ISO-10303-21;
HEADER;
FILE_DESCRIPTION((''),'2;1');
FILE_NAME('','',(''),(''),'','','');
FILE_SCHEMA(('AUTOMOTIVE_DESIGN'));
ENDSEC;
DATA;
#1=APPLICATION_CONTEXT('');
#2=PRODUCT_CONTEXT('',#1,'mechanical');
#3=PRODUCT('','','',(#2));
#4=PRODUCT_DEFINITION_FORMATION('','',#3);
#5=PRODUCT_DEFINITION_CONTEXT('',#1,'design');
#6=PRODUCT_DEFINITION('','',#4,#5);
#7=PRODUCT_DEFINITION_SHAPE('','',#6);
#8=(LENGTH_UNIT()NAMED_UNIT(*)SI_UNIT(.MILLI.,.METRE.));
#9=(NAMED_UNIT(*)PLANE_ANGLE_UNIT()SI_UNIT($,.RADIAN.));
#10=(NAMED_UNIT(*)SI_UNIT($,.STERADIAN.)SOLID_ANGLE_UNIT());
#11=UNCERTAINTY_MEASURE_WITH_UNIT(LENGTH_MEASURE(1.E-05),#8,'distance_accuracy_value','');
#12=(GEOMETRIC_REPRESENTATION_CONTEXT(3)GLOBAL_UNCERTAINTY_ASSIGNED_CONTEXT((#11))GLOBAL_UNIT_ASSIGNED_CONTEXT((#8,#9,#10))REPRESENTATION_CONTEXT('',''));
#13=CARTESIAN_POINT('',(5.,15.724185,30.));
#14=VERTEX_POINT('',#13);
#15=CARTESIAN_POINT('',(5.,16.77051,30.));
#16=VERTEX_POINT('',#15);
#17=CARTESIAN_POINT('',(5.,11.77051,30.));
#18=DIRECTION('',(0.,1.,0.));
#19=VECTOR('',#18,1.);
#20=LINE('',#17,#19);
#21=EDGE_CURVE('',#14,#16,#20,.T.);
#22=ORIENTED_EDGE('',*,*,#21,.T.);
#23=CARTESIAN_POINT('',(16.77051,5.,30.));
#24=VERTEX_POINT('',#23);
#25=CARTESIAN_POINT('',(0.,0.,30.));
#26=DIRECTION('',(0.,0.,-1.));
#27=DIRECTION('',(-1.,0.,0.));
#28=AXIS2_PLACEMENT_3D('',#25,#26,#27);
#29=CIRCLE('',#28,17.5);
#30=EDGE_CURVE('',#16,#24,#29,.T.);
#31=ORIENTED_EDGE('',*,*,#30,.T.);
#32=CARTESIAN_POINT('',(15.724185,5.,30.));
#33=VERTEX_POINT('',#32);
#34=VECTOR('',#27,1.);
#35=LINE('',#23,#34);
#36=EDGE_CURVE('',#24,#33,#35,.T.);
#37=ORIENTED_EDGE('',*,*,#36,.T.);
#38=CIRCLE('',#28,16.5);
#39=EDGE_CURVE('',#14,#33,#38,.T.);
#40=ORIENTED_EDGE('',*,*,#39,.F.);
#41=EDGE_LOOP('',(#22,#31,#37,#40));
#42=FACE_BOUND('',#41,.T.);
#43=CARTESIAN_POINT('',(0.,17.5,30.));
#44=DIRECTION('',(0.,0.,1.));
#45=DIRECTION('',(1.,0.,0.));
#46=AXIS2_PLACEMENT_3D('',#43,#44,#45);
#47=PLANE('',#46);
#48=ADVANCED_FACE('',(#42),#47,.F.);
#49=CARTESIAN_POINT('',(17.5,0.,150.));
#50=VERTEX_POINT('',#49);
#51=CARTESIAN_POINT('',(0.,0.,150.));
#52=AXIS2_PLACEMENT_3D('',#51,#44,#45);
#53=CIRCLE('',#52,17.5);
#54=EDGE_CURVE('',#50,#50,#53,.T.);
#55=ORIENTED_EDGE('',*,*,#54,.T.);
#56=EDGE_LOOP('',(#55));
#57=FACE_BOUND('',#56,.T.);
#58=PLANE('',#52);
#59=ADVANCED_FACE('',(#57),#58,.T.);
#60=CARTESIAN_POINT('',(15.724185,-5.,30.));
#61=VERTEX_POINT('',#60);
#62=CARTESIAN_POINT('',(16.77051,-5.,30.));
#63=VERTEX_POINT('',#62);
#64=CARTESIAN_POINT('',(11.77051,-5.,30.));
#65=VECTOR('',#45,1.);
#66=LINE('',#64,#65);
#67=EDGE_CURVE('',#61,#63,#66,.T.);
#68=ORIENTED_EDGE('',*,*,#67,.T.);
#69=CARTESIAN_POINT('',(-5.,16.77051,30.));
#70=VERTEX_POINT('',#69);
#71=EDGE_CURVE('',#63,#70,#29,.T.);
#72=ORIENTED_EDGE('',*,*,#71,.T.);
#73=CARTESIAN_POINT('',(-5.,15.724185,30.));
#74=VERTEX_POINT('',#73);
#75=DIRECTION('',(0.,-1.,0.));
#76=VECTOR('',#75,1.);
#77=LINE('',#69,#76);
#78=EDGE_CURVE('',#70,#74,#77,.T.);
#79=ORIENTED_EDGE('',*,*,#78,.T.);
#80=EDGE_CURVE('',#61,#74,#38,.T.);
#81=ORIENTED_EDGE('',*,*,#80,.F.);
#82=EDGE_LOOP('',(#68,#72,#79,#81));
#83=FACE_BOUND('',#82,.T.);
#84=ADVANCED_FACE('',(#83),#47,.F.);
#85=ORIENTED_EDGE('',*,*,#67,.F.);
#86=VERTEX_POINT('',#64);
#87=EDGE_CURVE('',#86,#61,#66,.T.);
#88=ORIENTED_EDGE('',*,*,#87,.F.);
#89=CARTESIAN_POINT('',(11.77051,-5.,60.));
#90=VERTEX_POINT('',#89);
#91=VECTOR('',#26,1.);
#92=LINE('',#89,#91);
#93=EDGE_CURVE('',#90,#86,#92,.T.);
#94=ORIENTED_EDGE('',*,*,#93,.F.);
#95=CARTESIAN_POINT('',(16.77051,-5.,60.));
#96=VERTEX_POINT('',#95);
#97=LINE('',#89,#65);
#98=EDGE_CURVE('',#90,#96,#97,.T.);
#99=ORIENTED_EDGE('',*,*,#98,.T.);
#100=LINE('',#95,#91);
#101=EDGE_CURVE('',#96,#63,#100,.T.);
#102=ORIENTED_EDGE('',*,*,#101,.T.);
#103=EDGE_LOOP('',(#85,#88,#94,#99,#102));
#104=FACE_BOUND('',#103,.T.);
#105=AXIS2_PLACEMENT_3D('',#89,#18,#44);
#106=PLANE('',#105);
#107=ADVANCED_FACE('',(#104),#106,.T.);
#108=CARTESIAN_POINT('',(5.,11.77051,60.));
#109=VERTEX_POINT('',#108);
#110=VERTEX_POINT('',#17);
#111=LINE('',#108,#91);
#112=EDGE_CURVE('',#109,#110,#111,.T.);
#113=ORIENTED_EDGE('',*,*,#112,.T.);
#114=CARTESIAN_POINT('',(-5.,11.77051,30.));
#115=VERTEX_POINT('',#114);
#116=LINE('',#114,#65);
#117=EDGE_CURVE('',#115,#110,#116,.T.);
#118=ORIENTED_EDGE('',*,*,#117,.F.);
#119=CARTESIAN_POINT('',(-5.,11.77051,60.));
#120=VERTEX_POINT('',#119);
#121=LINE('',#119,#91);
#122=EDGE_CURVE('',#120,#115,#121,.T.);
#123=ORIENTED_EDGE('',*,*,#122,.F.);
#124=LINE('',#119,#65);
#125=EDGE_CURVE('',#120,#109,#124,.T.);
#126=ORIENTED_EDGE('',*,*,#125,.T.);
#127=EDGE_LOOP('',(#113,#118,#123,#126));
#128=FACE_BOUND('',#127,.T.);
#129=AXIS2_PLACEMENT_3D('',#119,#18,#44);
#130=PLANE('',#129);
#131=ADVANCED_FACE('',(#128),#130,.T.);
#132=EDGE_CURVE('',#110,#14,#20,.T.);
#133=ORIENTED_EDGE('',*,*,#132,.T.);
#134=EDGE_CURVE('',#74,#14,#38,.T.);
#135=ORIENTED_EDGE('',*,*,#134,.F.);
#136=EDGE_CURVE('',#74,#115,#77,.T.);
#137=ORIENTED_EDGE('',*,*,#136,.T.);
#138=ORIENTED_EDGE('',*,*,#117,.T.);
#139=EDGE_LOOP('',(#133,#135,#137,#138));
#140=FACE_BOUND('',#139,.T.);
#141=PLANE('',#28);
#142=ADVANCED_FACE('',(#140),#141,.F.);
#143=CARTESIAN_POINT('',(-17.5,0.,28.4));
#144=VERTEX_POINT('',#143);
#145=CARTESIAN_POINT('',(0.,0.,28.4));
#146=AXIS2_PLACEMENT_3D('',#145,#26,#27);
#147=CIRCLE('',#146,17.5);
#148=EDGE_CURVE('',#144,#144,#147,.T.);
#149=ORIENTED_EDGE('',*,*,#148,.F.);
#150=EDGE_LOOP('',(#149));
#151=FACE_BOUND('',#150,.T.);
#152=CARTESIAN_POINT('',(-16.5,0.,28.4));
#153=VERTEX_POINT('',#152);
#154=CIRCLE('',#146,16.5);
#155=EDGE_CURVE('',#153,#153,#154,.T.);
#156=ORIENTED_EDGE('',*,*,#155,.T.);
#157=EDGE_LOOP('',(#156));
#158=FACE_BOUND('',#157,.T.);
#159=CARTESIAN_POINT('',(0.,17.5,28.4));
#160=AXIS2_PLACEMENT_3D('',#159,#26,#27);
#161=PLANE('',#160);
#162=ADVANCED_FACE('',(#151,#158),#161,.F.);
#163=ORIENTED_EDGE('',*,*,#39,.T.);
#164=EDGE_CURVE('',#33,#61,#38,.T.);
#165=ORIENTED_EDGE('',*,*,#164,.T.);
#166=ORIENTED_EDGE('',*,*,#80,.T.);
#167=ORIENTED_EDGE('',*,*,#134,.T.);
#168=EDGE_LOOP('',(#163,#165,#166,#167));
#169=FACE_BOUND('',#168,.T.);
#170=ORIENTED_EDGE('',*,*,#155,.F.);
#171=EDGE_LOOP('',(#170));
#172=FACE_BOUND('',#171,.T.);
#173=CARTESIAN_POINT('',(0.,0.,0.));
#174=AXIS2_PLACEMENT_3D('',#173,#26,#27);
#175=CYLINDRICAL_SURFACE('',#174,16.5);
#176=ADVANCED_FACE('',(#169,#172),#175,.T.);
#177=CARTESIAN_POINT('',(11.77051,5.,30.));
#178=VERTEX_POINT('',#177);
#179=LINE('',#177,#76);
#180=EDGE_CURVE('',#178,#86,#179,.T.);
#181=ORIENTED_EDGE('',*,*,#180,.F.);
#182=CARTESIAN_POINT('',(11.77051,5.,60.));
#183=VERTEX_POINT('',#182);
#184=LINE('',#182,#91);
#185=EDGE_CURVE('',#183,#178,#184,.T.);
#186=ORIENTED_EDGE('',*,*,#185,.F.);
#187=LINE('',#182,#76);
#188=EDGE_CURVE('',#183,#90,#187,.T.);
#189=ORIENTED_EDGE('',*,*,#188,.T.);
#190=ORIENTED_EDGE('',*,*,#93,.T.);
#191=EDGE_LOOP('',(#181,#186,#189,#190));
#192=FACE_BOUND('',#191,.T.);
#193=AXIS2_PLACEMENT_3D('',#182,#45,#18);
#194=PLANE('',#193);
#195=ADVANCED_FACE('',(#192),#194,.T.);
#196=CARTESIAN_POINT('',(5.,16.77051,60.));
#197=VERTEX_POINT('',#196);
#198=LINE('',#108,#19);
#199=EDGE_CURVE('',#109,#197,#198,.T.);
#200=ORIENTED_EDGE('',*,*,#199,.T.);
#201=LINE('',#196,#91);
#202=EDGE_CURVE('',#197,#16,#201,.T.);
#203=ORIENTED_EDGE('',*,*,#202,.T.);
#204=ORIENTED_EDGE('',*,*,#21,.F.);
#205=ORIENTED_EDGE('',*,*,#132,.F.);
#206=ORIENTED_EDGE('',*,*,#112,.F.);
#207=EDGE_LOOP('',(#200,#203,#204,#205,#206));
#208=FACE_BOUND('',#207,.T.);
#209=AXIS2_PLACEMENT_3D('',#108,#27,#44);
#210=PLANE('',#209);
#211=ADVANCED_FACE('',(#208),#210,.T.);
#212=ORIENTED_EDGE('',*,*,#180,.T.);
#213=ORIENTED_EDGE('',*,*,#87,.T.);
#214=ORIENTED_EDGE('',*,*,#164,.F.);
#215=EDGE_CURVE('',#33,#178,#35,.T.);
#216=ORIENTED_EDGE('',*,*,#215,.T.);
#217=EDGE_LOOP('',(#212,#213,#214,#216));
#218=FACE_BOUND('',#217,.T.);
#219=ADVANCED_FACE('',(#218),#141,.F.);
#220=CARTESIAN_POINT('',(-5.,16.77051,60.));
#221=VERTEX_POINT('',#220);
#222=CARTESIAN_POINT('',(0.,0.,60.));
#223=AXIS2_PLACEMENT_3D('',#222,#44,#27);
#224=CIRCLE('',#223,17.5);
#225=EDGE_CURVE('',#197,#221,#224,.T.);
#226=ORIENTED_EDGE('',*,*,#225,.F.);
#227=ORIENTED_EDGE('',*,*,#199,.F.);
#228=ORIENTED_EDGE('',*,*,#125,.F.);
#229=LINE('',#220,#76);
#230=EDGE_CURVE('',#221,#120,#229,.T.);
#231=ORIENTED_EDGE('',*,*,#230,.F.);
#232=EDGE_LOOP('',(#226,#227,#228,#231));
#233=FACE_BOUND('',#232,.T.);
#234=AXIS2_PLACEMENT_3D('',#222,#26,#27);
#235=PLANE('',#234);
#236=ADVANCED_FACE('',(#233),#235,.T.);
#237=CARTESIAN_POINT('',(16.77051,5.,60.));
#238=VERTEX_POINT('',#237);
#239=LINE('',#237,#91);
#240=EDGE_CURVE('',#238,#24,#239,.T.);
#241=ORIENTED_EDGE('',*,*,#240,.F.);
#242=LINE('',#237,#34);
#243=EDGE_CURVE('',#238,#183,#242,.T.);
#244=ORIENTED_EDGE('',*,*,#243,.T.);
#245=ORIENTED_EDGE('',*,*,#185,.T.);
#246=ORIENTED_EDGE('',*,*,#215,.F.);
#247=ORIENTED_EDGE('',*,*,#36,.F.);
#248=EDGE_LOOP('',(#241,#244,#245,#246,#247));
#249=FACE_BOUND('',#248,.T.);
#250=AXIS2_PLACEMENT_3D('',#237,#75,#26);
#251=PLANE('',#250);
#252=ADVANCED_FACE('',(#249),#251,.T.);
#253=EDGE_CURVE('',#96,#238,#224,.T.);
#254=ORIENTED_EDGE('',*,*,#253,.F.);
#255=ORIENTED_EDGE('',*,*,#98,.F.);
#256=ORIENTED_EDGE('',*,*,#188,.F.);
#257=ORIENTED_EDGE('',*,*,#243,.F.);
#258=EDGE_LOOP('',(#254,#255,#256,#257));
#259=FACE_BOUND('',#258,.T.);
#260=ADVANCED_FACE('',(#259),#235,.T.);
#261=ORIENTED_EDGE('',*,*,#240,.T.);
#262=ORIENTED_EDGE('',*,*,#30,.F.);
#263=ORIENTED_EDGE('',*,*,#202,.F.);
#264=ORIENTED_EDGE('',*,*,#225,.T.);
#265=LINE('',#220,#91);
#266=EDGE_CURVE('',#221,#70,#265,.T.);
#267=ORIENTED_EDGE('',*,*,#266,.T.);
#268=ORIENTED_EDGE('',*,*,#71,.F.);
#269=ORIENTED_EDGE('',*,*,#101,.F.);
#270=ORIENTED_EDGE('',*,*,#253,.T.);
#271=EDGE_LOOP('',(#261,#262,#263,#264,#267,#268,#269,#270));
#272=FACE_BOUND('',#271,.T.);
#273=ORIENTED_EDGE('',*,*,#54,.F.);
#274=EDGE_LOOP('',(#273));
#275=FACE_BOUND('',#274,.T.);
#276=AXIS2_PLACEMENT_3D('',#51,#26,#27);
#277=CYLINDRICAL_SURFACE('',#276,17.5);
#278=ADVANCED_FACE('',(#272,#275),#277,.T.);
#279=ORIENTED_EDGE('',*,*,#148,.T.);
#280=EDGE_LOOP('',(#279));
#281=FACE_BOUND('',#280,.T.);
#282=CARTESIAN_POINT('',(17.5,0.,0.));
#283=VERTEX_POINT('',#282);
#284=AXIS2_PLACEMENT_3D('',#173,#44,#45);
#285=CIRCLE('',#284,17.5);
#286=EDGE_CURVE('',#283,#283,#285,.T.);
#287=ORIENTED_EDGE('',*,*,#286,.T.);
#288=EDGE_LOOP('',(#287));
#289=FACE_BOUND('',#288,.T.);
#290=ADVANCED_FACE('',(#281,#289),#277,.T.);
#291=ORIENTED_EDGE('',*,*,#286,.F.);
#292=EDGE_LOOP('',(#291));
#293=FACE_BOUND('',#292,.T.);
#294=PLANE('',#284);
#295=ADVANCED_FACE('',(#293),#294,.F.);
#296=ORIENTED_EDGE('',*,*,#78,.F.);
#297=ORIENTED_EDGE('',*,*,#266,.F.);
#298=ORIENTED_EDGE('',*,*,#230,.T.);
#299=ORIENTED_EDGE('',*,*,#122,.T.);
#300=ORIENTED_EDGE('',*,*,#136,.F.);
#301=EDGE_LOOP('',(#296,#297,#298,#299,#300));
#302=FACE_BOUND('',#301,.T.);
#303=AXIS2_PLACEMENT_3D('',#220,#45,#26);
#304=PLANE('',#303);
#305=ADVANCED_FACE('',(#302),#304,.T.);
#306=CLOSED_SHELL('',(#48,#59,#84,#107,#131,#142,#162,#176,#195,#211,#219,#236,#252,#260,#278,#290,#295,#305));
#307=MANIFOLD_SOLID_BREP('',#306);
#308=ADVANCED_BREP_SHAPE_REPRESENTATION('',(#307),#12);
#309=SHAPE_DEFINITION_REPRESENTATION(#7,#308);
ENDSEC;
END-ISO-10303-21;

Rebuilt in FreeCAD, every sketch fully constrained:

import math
import FreeCAD as App
import Part
import Sketcher
from FreeCAD import Vector
Q = App.Units.Quantity


def add_polygon(sketch, points):
    """Adds a closed chain of lines whose ends are joined by coincident constraints."""
    first, n = sketch.GeometryCount, len(points)
    for a, b in zip(points, points[1:] + points[:1]):
        sketch.addGeometry(Part.LineSegment(App.Vector(*a, 0), App.Vector(*b, 0)), False)
    for i in range(n):
        sketch.addConstraint(Sketcher.Constraint("Coincident", first + i, 2, first + (i + 1) % n, 1))

doc = App.newDocument("Part")
body = doc.addObject("PartDesign::Body", "Body")

sketch1 = body.newObject("Sketcher::SketchObject", "Sketch")
sketch1.AttachmentSupport = (doc.getObject("XY_Plane"), [""])
sketch1.MapMode = "FlatFace"
sketch1.addGeometry(Part.Circle(Vector(0, 0, 0), Vector(0, 0, 1), 18), False)
sketch1.addConstraint(Sketcher.Constraint("Coincident", 0, 3, -1, 1))
sketch1.addConstraint(Sketcher.Constraint("Diameter", 0, Q("35 mm")))
pad1 = body.newObject("PartDesign::Pad", "Pad")
pad1.Profile = sketch1
pad1.Length = 150

sketch2 = body.newObject("Sketcher::SketchObject", "Sketch001")
sketch2.AttachmentSupport = (doc.getObject("XY_Plane"), [""])
sketch2.MapMode = "FlatFace"
sketch2.AttachmentOffset = App.Placement(Vector(0, 0, 30), App.Rotation())
sketch2.addGeometry(Part.LineSegment(Vector(-5, 16.8, 0), Vector(-5, 11.8, 0)), False)
sketch2.addGeometry(Part.LineSegment(Vector(-5, 11.8, 0), Vector(5, 11.8, 0)), False)
sketch2.addGeometry(Part.LineSegment(Vector(5, 11.8, 0), Vector(5, 16.8, 0)), False)
sketch2.addGeometry(Part.ArcOfCircle(Part.Circle(Vector(0, 0, 0), Vector(0, 0, 1), 17.5), math.radians(73), math.radians(107)), False)
sketch2.addGeometry(Part.LineSegment(Vector(16.8, 5, 0), Vector(11.8, 5, 0)), False)
sketch2.addGeometry(Part.LineSegment(Vector(11.8, 5, 0), Vector(11.8, -5, 0)), False)
sketch2.addGeometry(Part.LineSegment(Vector(11.8, -5, 0), Vector(16.8, -5, 0)), False)
sketch2.addGeometry(Part.ArcOfCircle(Part.Circle(Vector(0, 0, 0), Vector(0, 0, 1), 17.5), math.radians(-17), math.radians(17)), False)
sketch2.addConstraint(Sketcher.Constraint("Coincident", 0, 2, 1, 1))
sketch2.addConstraint(Sketcher.Constraint("Coincident", 1, 2, 2, 1))
sketch2.addConstraint(Sketcher.Constraint("Coincident", 2, 2, 3, 1))
sketch2.addConstraint(Sketcher.Constraint("Coincident", 3, 2, 0, 1))
sketch2.addConstraint(Sketcher.Constraint("Coincident", 4, 2, 5, 1))
sketch2.addConstraint(Sketcher.Constraint("Coincident", 5, 2, 6, 1))
sketch2.addConstraint(Sketcher.Constraint("Coincident", 6, 2, 7, 1))
sketch2.addConstraint(Sketcher.Constraint("Coincident", 7, 2, 4, 1))
sketch2.addConstraint(Sketcher.Constraint("Vertical", 0))
sketch2.addConstraint(Sketcher.Constraint("Horizontal", 1))
sketch2.addConstraint(Sketcher.Constraint("Vertical", 2))
sketch2.addConstraint(Sketcher.Constraint("Horizontal", 4))
sketch2.addConstraint(Sketcher.Constraint("Vertical", 5))
sketch2.addConstraint(Sketcher.Constraint("Horizontal", 6))
sketch2.addConstraint(Sketcher.Constraint("Coincident", 3, 3, -1, 1))
sketch2.addConstraint(Sketcher.Constraint("Coincident", 7, 3, -1, 1))
sketch2.addConstraint(Sketcher.Constraint("Equal", 3, 7))
sketch2.addConstraint(Sketcher.Constraint("Horizontal", 2, 2, 3, 2))
sketch2.addConstraint(Sketcher.Constraint("Vertical", 6, 2, 7, 2))
sketch2.addConstraint(Sketcher.Constraint("Equal", 6, 0))
sketch2.addConstraint(Sketcher.Constraint("Equal", 1, 5))
sketch2.addConstraint(Sketcher.Constraint("Radius", 3, Q("17.5 mm")))
sketch2.addConstraint(Sketcher.Constraint("DistanceX", 1, 1, 1, 2, Q("10 mm")))
sketch2.addConstraint(Sketcher.Constraint("DistanceX", 4, 2, 4, 1, Q("5 mm")))
pocket1 = body.newObject("PartDesign::Pocket", "Pocket")
pocket1.Profile = sketch2
pocket1.Length = 30
pocket1.Reversed = True

sketch3 = body.newObject("Sketcher::SketchObject", "Sketch002")
sketch3.AttachmentSupport = (doc.getObject("YZ_Plane"), [""])
sketch3.MapMode = "FlatFace"
add_polygon(sketch3, [(17.5, 30), (16.5, 30), (16.5, 28.4), (17.5, 28.4)])
sketch3.addConstraint(Sketcher.Constraint("Horizontal", 0))
sketch3.addConstraint(Sketcher.Constraint("Vertical", 1))
sketch3.addConstraint(Sketcher.Constraint("Horizontal", 2))
sketch3.addConstraint(Sketcher.Constraint("Vertical", 3))
sketch3.addConstraint(Sketcher.Constraint("DistanceX", 0, 2, 0, 1, Q("1 mm")))
sketch3.addConstraint(Sketcher.Constraint("DistanceY", 1, 2, 1, 1, Q("1.6 mm")))
sketch3.addConstraint(Sketcher.Constraint("DistanceY", -1, 1, 0, 2, Q("30 mm")))
sketch3.addConstraint(Sketcher.Constraint("DistanceX", -1, 1, 0, 2, Q("16.5 mm")))
groove = body.newObject("PartDesign::Groove", "Groove")
groove.Profile = sketch3
groove.ReferenceAxis = (sketch3, ["V_Axis"])
groove.Angle = 360

doc.recompute()
